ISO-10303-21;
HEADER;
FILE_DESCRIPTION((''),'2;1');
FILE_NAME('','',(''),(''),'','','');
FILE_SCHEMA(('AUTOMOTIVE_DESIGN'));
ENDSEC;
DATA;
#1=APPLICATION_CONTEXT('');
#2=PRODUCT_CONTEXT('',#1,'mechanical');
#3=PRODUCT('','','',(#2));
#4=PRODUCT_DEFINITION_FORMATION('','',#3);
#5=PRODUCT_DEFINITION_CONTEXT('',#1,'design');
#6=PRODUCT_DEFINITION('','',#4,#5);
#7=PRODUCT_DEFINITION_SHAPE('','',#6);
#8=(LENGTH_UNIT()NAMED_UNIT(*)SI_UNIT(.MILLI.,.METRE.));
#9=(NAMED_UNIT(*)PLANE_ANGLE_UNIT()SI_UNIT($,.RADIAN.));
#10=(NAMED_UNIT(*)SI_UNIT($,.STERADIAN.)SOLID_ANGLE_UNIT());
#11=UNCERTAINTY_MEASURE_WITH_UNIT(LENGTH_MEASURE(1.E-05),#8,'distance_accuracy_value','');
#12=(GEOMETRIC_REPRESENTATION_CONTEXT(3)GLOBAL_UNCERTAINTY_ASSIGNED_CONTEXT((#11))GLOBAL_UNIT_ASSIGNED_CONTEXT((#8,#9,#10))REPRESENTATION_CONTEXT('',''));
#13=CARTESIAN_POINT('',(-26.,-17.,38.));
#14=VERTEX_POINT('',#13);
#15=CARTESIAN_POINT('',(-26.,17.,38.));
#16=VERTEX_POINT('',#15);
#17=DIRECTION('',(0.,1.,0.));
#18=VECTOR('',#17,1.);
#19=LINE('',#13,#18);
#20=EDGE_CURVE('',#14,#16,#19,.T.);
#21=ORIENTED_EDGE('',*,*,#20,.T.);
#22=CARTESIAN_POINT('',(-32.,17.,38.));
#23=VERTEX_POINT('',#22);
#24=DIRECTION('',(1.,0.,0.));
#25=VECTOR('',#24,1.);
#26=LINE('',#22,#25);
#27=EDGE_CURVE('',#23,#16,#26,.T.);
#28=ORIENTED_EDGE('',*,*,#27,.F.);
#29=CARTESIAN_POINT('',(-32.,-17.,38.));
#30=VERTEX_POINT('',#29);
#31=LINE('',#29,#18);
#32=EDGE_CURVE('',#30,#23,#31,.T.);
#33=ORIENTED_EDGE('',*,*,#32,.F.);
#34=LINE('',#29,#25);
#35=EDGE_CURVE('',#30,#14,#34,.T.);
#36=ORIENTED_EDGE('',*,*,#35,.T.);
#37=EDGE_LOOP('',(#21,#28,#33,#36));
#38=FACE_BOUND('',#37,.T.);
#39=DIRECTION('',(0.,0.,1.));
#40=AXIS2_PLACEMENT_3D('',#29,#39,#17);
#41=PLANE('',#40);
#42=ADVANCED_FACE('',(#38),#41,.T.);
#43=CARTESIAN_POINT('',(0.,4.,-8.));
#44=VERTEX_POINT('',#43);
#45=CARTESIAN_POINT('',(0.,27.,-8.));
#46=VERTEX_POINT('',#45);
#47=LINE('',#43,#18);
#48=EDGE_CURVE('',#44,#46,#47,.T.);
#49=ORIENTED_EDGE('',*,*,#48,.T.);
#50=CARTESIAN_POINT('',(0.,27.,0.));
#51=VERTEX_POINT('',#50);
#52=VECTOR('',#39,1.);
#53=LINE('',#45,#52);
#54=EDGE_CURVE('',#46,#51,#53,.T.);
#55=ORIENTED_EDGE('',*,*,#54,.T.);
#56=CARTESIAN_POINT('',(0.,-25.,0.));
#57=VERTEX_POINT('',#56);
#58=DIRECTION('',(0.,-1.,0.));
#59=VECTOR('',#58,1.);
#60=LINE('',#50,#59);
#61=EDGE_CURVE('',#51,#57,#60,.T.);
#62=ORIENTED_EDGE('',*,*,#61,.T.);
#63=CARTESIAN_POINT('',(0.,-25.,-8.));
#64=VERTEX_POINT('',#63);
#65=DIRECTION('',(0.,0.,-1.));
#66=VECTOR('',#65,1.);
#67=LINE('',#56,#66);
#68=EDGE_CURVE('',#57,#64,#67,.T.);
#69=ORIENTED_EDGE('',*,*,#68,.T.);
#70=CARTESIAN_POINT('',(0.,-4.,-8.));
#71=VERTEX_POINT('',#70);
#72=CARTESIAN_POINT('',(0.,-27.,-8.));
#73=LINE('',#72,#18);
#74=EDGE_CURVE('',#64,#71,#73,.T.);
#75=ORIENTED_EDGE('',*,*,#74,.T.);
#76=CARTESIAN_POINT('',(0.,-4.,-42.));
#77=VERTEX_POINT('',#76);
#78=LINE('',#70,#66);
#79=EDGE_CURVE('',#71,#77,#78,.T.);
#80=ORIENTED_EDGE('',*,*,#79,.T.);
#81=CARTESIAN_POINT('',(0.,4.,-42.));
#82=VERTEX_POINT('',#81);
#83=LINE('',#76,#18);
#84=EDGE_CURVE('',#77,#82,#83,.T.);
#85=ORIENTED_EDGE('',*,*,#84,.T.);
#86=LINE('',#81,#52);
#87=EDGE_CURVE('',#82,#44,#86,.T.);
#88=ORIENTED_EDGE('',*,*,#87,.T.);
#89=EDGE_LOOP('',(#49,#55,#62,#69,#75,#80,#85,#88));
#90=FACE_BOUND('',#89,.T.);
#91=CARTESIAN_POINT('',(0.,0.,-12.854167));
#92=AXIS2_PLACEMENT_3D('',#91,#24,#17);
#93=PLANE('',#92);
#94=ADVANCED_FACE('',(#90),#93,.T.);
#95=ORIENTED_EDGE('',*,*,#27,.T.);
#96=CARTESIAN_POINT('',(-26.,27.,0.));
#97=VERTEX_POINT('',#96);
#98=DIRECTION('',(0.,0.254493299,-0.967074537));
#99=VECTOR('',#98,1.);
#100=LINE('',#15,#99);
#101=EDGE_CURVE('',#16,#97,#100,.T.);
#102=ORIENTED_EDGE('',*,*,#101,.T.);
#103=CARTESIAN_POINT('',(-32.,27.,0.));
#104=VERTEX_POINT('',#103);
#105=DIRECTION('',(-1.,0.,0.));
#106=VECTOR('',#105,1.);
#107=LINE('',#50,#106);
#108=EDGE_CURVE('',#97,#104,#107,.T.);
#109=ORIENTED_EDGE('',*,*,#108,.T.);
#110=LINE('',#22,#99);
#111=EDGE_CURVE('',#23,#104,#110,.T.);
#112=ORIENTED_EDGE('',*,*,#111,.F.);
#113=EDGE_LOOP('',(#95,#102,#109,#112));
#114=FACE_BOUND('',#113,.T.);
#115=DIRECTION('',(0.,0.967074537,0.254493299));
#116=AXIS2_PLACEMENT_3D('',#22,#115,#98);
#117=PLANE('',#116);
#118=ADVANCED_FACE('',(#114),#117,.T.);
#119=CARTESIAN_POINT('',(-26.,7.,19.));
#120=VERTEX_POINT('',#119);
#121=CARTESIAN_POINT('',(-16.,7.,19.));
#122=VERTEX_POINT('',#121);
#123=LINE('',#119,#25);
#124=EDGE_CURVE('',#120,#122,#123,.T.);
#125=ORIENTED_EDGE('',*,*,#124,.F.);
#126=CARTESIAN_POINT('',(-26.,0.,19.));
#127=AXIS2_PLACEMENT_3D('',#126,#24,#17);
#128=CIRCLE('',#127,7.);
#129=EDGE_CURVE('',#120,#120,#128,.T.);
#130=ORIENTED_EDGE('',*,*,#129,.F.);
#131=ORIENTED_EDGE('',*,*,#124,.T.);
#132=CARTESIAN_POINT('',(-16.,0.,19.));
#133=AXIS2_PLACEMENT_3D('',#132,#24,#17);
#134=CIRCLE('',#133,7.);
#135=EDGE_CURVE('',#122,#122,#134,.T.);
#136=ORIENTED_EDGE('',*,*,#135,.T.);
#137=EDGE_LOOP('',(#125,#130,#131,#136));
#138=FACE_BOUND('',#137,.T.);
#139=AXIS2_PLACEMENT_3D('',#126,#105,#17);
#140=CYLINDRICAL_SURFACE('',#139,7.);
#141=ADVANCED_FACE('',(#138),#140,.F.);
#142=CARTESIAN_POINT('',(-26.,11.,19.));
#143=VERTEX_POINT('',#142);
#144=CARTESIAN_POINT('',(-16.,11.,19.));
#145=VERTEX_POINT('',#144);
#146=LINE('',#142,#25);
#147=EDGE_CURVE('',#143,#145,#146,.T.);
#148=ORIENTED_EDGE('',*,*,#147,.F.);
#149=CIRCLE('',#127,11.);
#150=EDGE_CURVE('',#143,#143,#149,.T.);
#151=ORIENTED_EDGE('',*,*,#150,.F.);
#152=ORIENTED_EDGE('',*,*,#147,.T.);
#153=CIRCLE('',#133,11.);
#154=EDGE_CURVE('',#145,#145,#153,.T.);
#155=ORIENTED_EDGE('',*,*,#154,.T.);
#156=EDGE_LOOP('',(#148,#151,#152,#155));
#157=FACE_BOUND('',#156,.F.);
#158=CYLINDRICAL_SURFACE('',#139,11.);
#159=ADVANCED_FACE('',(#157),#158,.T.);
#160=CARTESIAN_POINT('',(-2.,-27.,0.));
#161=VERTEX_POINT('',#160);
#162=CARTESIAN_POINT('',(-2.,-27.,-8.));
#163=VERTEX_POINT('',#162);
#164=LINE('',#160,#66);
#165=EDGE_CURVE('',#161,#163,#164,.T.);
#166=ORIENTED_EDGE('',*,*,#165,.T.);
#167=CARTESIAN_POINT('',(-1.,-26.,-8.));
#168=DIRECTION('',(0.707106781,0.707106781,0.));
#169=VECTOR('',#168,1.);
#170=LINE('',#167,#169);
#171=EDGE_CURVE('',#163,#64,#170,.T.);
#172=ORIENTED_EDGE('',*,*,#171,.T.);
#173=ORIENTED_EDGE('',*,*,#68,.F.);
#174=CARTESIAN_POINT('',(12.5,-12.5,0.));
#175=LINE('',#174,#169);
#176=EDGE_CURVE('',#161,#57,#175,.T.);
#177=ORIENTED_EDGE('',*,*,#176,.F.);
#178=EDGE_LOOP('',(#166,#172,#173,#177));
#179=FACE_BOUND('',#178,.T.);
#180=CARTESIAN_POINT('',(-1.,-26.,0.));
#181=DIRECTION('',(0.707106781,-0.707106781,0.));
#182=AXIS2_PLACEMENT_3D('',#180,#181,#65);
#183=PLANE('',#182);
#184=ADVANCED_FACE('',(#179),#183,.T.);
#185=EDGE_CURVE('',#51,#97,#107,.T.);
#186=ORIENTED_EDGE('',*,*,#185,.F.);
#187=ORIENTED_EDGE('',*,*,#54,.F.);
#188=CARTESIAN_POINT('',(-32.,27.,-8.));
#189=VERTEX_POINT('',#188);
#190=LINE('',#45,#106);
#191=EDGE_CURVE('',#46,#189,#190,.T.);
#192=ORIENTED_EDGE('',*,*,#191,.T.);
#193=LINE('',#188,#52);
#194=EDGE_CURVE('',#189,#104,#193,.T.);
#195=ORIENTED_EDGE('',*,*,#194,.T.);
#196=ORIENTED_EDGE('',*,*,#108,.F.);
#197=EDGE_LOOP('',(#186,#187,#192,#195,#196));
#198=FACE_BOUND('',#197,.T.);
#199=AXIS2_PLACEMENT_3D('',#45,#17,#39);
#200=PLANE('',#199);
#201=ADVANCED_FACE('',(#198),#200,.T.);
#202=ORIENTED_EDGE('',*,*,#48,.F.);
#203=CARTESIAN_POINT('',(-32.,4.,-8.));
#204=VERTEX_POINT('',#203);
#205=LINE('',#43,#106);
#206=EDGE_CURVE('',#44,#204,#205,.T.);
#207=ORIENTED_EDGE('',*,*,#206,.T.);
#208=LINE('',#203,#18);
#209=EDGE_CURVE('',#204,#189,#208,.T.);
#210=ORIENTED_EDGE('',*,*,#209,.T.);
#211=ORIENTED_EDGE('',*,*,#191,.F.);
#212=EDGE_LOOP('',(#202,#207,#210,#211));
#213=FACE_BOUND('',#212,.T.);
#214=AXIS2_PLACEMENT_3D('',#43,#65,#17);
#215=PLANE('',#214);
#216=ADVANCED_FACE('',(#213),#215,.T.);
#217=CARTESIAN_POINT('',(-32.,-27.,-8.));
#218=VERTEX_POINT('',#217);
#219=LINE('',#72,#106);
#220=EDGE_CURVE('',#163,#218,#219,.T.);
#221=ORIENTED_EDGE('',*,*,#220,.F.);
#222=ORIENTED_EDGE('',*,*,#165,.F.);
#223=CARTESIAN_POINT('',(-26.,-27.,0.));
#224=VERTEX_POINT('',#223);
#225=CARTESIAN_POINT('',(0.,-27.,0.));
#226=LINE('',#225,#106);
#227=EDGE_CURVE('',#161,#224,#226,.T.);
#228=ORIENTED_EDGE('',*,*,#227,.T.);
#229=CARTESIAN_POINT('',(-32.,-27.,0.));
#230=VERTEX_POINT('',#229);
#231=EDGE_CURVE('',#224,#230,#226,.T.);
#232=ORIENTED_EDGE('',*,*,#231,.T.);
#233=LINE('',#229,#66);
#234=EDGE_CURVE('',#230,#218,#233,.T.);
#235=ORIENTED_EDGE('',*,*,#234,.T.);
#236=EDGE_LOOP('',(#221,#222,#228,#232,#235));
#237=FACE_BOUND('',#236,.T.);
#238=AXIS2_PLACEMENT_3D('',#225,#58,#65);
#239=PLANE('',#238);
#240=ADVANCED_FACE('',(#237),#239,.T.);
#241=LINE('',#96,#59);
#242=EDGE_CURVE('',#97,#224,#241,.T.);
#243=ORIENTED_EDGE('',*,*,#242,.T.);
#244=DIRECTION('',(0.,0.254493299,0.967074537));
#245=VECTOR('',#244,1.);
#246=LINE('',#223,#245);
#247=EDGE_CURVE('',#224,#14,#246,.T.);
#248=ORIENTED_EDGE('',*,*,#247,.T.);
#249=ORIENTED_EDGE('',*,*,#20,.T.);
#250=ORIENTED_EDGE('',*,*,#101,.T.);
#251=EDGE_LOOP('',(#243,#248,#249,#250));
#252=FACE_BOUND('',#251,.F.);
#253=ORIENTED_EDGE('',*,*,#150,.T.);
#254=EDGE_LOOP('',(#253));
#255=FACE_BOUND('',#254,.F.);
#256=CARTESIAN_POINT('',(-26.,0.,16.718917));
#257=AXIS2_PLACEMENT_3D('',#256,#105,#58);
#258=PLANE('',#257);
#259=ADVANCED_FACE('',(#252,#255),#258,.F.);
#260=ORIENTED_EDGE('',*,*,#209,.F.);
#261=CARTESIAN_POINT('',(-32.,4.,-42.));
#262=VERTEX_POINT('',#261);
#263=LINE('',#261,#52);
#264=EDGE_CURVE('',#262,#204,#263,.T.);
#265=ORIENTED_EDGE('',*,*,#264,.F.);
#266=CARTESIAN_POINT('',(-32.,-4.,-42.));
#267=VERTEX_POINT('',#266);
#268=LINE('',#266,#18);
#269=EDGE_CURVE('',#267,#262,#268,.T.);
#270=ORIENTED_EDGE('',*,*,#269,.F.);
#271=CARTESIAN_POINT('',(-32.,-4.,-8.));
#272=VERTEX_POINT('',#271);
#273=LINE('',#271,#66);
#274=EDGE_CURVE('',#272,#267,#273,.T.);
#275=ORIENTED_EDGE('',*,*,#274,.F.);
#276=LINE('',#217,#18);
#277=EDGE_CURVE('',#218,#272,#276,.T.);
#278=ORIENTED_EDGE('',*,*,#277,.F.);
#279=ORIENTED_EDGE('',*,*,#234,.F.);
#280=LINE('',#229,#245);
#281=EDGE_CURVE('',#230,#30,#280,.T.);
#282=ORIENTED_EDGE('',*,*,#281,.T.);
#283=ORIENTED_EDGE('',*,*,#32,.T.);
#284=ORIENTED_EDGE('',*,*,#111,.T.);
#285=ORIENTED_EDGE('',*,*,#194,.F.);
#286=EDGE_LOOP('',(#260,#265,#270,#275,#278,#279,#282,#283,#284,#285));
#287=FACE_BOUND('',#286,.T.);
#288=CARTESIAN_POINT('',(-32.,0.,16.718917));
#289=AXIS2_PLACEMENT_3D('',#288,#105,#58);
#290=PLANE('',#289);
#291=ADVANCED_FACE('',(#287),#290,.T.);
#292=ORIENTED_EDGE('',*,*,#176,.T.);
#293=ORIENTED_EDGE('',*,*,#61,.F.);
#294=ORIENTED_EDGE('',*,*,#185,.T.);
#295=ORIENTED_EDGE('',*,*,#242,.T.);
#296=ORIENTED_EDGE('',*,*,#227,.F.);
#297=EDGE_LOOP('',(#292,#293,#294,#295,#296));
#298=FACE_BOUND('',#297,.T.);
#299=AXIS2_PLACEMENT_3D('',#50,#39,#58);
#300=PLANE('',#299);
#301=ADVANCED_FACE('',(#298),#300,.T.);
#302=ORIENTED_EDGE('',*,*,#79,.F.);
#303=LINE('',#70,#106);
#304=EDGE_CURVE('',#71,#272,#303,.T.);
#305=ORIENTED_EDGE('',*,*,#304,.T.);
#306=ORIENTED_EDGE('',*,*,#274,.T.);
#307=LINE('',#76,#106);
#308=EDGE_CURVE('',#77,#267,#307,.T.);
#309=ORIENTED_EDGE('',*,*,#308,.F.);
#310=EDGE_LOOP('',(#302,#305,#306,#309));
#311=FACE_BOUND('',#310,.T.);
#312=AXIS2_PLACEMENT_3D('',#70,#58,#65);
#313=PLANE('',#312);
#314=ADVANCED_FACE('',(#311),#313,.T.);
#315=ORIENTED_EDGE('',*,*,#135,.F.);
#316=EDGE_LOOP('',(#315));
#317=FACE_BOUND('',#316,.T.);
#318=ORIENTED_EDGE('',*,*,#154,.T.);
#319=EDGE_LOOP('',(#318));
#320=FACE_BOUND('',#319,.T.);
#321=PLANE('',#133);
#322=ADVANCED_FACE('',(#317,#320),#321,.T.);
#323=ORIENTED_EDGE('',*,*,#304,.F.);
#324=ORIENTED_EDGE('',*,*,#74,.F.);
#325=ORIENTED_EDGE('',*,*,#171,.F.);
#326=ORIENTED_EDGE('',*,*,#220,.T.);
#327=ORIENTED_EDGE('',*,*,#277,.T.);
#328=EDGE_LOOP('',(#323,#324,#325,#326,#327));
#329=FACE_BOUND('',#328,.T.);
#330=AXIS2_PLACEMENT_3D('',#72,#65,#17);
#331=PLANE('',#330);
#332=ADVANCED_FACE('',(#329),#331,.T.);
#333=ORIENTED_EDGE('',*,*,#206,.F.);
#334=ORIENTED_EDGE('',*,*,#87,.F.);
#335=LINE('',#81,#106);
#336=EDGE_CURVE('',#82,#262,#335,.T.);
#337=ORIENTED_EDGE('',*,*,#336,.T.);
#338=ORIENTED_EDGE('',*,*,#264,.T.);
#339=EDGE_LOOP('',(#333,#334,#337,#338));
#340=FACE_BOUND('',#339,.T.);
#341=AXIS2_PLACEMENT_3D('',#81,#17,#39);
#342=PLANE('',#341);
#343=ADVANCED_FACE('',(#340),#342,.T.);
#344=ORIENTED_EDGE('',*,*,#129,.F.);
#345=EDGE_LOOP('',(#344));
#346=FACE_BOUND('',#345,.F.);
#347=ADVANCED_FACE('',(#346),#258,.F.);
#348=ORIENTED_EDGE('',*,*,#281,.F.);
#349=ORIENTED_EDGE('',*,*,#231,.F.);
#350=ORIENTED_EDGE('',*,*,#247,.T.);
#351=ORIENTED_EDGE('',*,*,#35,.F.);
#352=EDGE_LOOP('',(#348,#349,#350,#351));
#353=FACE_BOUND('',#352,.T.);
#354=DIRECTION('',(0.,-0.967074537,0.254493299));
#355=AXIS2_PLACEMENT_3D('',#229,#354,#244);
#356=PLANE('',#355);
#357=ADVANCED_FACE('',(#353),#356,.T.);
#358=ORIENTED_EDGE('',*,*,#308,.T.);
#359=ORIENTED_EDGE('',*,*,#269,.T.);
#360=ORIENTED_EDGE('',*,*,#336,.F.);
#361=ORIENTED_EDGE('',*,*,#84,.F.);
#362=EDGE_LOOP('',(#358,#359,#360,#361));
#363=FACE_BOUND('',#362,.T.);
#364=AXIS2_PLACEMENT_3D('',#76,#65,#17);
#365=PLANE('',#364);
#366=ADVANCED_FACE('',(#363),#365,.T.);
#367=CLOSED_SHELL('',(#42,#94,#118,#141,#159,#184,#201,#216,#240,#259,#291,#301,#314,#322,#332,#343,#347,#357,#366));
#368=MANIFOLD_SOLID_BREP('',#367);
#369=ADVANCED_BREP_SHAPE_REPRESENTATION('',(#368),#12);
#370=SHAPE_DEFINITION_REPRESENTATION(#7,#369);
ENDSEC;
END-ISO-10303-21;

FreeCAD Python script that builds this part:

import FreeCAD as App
import Part
import Sketcher
Q = App.Units.Quantity


def edges_at(feature, points):
    """Names of the edges that pass closest to the given points."""
    edges = feature.Shape.Edges
    near = lambda p: min(range(len(edges)), key=lambda i: edges[i].distToShape(Part.Vertex(*p))[0])
    return sorted({f"Edge{near(p) + 1}" for p in points})

doc = App.newDocument("Part")
body = doc.addObject("PartDesign::Body", "Body")

# Sketch on YZ plane
sketch1 = body.newObject("Sketcher::SketchObject", "Sketch")
sketch1.AttachmentSupport = (doc.getObject("YZ_Plane"), [""])
sketch1.MapMode = "FlatFace"
sketch1.addGeometry([
    Part.LineSegment(App.Vector(27, 0, 0), App.Vector(-27, 0, 0)),  # 0
    Part.LineSegment(App.Vector(-27, 0, 0), App.Vector(-27, -8, 0)),  # 1
    Part.LineSegment(App.Vector(-27, -8, 0), App.Vector(-4, -8, 0)),  # 2
    Part.LineSegment(App.Vector(-4, -8, 0), App.Vector(-4, -42, 0)),  # 3
    Part.LineSegment(App.Vector(-4, -42, 0), App.Vector(4, -42, 0)),  # 4
    Part.LineSegment(App.Vector(4, -42, 0), App.Vector(4, -8, 0)),  # 5
    Part.LineSegment(App.Vector(4, -8, 0), App.Vector(27, -8, 0)),  # 6
    Part.LineSegment(App.Vector(27, -8, 0), App.Vector(27, 0, 0)),  # 7
], False)
sketch1.addConstraint([
    Sketcher.Constraint("Coincident", 0, 2, 1, 1),
    Sketcher.Constraint("Coincident", 1, 2, 2, 1),
    Sketcher.Constraint("Coincident", 2, 2, 3, 1),
    Sketcher.Constraint("Coincident", 3, 2, 4, 1),
    Sketcher.Constraint("Coincident", 4, 2, 5, 1),
    Sketcher.Constraint("Coincident", 5, 2, 6, 1),
    Sketcher.Constraint("Coincident", 6, 2, 7, 1),
    Sketcher.Constraint("Coincident", 7, 2, 0, 1),
    Sketcher.Constraint("Horizontal", 0),
    Sketcher.Constraint("Vertical", 1),
    Sketcher.Constraint("Horizontal", 2),
    Sketcher.Constraint("Vertical", 3),
    Sketcher.Constraint("Horizontal", 4),
    Sketcher.Constraint("Vertical", 5),
    Sketcher.Constraint("Horizontal", 6),
    Sketcher.Constraint("Vertical", 7),
    Sketcher.Constraint("Symmetric", 0, 2, 7, 2, -1, 1),
    Sketcher.Constraint("Symmetric", 2, 2, 5, 2, -2),
    Sketcher.Constraint("Equal", 4, 1),
    Sketcher.Constraint("DistanceX", 0, 2, 0, 1, Q("54 mm")),
    Sketcher.Constraint("DistanceX", 2, 1, 2, 2, Q("23 mm")),
    Sketcher.Constraint("DistanceY", 3, 2, 3, 1, Q("34 mm")),
])
pad1 = body.newObject("PartDesign::Pad", "Pad")
pad1.Profile = sketch1
pad1.Length = 32
pad1.Reversed = True

# Sketch on YZ plane
sketch2 = body.newObject("Sketcher::SketchObject", "Sketch001")
sketch2.AttachmentSupport = (doc.getObject("YZ_Plane"), [""])
sketch2.MapMode = "FlatFace"
sketch2.AttachmentOffset = App.Placement(App.Vector(0, 0, -32), App.Rotation())
sketch2.addGeometry([
    Part.LineSegment(App.Vector(27, 0, 0), App.Vector(-27, 0, 0)),
    Part.LineSegment(App.Vector(-27, 0, 0), App.Vector(-17, 38, 0)),
    Part.LineSegment(App.Vector(-17, 38, 0), App.Vector(17, 38, 0)),
    Part.LineSegment(App.Vector(17, 38, 0), App.Vector(27, 0, 0)),
], False)
sketch2.addConstraint([
    Sketcher.Constraint("Coincident", 0, 2, 1, 1),
    Sketcher.Constraint("Coincident", 1, 2, 2, 1),
    Sketcher.Constraint("Coincident", 2, 2, 3, 1),
    Sketcher.Constraint("Coincident", 3, 2, 0, 1),
    Sketcher.Constraint("Horizontal", 0),
    Sketcher.Constraint("Horizontal", 2),
    Sketcher.Constraint("Symmetric", 0, 2, 3, 2, -1, 1),
    Sketcher.Constraint("Equal", 1, 3),
    Sketcher.Constraint("DistanceX", 0, 2, 0, 1, Q("54 mm")),
    Sketcher.Constraint("DistanceX", 2, 1, 2, 2, Q("34 mm")),
    Sketcher.Constraint("DistanceY", -1, 1, 1, 2, Q("38 mm")),
])
pad2 = body.newObject("PartDesign::Pad", "Pad001")
pad2.Profile = sketch2
pad2.Length = 6

# Sketch on YZ plane
sketch3 = body.newObject("Sketcher::SketchObject", "Sketch002")
sketch3.AttachmentSupport = (doc.getObject("YZ_Plane"), [""])
sketch3.MapMode = "FlatFace"
sketch3.AttachmentOffset = App.Placement(App.Vector(0, 0, -26), App.Rotation())
sketch3.addGeometry([
    Part.Circle(App.Vector(0, 19, 0), App.Vector(0, 0, 1), 11),
    Part.Circle(App.Vector(0, 19, 0), App.Vector(0, 0, 1), 7),
], False)
sketch3.addConstraint([
    Sketcher.Constraint("Coincident", 1, 3, 0, 3),
    Sketcher.Constraint("PointOnObject", 0, 3, -2),
    Sketcher.Constraint("Diameter", 0, Q("22 mm")),
    Sketcher.Constraint("Diameter", 1, Q("14 mm")),
    Sketcher.Constraint("DistanceY", -1, 1, 0, 3, Q("19 mm")),
])
pad3 = body.newObject("PartDesign::Pad", "Pad002")
pad3.Profile = sketch3
pad3.Length = 10
doc.recompute()

chamfer = body.newObject("PartDesign::Chamfer", "Chamfer")
chamfer.Base = (pad3, edges_at(pad3, [(0, -27, -4)]))
chamfer.Size = 2

doc.recompute()
